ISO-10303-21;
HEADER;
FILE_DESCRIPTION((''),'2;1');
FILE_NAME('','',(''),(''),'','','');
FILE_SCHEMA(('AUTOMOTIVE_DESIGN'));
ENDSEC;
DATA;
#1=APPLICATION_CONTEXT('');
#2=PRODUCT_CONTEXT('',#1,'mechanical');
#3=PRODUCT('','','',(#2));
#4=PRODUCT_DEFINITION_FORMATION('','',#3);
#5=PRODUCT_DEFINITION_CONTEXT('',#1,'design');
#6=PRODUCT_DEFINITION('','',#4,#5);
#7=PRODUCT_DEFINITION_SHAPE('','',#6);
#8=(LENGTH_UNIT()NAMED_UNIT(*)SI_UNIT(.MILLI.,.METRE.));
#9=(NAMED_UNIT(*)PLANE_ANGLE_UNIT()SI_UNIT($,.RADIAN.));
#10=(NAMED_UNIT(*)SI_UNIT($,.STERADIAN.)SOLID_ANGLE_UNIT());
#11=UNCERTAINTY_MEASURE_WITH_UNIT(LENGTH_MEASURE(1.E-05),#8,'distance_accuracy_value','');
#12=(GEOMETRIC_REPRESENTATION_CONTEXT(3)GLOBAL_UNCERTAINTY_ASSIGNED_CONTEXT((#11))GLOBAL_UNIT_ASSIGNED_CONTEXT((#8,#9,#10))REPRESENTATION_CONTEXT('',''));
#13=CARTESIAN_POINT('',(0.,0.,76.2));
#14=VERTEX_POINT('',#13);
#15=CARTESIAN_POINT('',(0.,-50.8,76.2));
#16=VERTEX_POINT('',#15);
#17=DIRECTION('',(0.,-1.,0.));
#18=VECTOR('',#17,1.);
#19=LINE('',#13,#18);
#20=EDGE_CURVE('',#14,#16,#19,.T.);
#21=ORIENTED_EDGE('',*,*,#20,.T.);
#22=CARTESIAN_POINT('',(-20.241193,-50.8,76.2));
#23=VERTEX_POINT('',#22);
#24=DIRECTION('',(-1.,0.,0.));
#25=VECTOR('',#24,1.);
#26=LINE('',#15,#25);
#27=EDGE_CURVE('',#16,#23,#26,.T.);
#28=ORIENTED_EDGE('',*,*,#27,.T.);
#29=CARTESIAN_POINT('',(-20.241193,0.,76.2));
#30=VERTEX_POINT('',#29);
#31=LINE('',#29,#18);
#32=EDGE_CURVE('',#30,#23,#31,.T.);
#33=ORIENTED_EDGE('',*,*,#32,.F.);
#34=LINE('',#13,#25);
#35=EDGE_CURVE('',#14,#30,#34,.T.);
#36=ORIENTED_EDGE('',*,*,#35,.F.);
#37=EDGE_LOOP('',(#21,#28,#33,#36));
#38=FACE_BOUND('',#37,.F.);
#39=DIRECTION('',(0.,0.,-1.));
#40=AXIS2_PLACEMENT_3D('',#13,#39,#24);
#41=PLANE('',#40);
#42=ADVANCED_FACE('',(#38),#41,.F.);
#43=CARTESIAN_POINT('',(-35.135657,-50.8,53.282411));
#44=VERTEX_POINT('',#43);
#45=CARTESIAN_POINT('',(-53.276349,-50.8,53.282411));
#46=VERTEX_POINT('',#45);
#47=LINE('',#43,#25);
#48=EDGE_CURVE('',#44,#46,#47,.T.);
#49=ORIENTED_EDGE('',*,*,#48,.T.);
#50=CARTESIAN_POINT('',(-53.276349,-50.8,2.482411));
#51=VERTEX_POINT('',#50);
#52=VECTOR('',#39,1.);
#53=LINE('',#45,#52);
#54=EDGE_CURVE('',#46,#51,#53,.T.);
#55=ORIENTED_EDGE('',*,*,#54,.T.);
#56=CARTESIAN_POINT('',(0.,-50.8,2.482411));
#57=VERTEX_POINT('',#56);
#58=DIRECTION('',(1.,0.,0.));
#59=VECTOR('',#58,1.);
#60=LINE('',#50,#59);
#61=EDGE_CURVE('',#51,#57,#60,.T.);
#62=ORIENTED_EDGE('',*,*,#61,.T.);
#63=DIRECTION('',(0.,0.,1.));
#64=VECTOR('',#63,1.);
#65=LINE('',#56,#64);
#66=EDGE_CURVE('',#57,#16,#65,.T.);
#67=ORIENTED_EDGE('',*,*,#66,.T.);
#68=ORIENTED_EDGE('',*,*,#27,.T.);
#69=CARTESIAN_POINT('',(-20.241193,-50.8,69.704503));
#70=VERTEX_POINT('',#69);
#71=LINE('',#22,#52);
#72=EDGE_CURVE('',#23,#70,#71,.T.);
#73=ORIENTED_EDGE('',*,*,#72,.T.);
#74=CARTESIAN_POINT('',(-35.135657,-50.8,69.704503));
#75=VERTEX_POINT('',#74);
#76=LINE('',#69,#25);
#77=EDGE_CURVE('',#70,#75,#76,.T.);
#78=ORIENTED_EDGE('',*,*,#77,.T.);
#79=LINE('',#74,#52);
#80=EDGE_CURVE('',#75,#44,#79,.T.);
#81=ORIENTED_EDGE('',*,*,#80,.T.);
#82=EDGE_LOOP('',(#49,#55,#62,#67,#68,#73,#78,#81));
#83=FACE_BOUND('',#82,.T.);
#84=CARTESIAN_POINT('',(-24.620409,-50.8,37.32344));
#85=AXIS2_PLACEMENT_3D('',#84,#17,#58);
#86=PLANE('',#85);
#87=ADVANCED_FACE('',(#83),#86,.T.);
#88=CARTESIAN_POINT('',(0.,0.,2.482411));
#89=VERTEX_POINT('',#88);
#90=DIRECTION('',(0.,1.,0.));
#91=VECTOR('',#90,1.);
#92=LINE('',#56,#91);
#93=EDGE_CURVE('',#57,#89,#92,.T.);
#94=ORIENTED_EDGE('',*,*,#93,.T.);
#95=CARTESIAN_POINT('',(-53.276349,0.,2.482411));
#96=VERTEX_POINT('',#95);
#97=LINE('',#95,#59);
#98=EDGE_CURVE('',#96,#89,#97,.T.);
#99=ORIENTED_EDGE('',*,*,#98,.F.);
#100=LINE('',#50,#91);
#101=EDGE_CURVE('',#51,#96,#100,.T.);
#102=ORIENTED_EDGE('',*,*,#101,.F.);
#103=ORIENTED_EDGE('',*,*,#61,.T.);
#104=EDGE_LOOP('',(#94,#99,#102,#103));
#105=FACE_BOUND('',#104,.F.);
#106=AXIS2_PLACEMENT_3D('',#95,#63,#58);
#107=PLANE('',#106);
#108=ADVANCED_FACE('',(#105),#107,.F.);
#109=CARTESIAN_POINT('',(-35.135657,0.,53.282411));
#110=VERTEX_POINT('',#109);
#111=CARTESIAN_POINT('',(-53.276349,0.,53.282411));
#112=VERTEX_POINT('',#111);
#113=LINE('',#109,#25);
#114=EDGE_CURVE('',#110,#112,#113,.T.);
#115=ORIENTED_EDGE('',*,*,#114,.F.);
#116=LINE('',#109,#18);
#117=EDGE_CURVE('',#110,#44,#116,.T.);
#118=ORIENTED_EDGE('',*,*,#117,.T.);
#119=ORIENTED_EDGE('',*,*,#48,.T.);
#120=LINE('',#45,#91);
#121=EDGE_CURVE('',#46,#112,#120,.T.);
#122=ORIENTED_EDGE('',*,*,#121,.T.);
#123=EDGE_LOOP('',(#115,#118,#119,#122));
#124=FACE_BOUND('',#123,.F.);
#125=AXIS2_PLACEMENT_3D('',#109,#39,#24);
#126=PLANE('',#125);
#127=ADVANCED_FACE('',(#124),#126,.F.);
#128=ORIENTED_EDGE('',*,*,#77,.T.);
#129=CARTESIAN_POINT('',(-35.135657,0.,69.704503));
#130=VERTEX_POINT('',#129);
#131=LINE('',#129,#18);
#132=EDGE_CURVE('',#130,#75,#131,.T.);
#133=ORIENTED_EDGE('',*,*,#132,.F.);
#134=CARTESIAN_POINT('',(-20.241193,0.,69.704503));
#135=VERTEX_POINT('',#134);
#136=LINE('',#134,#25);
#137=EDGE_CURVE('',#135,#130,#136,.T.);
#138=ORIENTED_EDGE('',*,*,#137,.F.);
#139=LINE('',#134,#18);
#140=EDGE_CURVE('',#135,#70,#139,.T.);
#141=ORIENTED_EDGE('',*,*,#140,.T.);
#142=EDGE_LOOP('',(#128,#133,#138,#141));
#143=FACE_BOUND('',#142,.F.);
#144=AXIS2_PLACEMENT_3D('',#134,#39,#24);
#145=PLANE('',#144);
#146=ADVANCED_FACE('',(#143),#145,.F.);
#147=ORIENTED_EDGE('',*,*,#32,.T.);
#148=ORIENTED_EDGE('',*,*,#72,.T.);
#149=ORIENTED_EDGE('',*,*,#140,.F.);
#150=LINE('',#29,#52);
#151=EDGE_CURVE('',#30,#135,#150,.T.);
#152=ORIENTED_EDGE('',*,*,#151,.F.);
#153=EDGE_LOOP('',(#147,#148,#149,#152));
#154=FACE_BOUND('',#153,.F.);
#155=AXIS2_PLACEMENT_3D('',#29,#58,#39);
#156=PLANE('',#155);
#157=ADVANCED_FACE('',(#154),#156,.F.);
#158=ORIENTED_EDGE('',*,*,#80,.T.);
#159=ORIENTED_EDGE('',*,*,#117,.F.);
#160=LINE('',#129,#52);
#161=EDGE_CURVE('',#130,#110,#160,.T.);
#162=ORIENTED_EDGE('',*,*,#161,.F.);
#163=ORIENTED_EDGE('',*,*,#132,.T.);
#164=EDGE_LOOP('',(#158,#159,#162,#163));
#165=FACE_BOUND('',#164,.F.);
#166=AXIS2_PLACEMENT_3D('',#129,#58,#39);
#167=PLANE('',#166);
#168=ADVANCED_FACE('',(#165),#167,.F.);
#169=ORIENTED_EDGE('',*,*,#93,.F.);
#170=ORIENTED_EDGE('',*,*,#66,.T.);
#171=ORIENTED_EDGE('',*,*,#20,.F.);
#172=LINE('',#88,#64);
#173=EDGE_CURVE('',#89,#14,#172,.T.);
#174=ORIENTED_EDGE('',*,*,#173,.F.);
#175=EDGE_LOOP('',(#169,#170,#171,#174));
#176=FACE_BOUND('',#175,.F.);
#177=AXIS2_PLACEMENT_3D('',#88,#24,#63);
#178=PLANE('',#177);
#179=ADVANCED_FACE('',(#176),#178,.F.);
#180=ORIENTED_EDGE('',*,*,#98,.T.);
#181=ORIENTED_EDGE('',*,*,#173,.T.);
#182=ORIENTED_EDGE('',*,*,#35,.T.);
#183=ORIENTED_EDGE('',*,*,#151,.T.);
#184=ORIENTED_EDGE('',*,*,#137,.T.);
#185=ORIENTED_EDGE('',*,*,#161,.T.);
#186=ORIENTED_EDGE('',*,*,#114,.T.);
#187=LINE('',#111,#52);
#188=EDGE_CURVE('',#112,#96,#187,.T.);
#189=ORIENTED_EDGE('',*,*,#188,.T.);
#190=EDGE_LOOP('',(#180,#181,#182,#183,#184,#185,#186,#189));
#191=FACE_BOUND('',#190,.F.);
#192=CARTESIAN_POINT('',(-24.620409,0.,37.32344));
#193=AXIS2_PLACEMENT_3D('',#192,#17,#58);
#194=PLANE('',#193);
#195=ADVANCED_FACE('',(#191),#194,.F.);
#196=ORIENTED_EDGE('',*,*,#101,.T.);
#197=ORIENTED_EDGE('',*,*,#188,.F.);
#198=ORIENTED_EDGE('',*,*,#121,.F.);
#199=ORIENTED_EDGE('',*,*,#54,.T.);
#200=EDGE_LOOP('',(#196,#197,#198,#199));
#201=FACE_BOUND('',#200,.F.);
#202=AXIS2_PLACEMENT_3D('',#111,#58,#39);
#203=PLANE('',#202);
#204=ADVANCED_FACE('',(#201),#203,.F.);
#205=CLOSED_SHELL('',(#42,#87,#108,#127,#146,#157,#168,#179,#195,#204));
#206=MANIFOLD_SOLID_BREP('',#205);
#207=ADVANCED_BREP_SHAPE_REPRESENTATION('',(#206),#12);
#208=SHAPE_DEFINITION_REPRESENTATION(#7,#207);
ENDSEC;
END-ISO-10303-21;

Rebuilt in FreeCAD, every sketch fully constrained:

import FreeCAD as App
import Part
import Sketcher
Q = App.Units.Quantity

doc = App.newDocument("Part")
body = doc.addObject("PartDesign::Body", "Body")

# Sketch on XZ plane
sketch1 = body.newObject("Sketcher::SketchObject", "Sketch")
sketch1.AttachmentSupport = (doc.getObject("XZ_Plane"), [""])
sketch1.MapMode = "FlatFace"
sketch1.addGeometry([
    Part.LineSegment(App.Vector(0, 2, 0), App.Vector(0, 76, 0)),  # 0
    Part.LineSegment(App.Vector(0, 76, 0), App.Vector(-20, 76, 0)),  # 1
    Part.LineSegment(App.Vector(-20, 76, 0), App.Vector(-20, 70, 0)),  # 2
    Part.LineSegment(App.Vector(-20, 70, 0), App.Vector(-35, 70, 0)),  # 3
    Part.LineSegment(App.Vector(-35, 70, 0), App.Vector(-35, 53, 0)),  # 4
    Part.LineSegment(App.Vector(-35, 53, 0), App.Vector(-53, 53, 0)),  # 5
    Part.LineSegment(App.Vector(-53, 53, 0), App.Vector(-53, 2, 0)),  # 6
    Part.LineSegment(App.Vector(-53, 2, 0), App.Vector(0, 2, 0)),  # 7
], False)
sketch1.addConstraint([
    Sketcher.Constraint("Coincident", 0, 2, 1, 1),
    Sketcher.Constraint("Coincident", 1, 2, 2, 1),
    Sketcher.Constraint("Coincident", 2, 2, 3, 1),
    Sketcher.Constraint("Coincident", 3, 2, 4, 1),
    Sketcher.Constraint("Coincident", 4, 2, 5, 1),
    Sketcher.Constraint("Coincident", 5, 2, 6, 1),
    Sketcher.Constraint("Coincident", 6, 2, 7, 1),
    Sketcher.Constraint("Coincident", 7, 2, 0, 1),
    Sketcher.Constraint("Vertical", 0),
    Sketcher.Constraint("Horizontal", 1),
    Sketcher.Constraint("Vertical", 2),
    Sketcher.Constraint("Horizontal", 3),
    Sketcher.Constraint("Vertical", 4),
    Sketcher.Constraint("Horizontal", 5),
    Sketcher.Constraint("Vertical", 6),
    Sketcher.Constraint("Horizontal", 7),
    Sketcher.Constraint("PointOnObject", 0, 2, -2),
    Sketcher.Constraint("DistanceY", 6, 2, 6, 1, Q("2 in")),
    Sketcher.Constraint("DistanceY", -1, 1, 0, 2, Q("3 in")),
    Sketcher.Constraint("DistanceX", 7, 1, 7, 2, Q("53.276349 mm")),
    Sketcher.Constraint("DistanceY", 0, 1, 0, 2, Q("73.717589 mm")),
    Sketcher.Constraint("DistanceY", 4, 2, 4, 1, Q("16.422092 mm")),
    Sketcher.Constraint("DistanceX", 1, 2, 1, 1, Q("20.241193 mm")),
    Sketcher.Constraint("DistanceX", 3, 2, 3, 1, Q("14.894464 mm")),
])
pad1 = body.newObject("PartDesign::Pad", "Pad")
pad1.Profile = sketch1
pad1.Length = Q("1 in")

# Sketch on XZ plane
sketch2 = body.newObject("Sketcher::SketchObject", "Sketch001")
sketch2.AttachmentSupport = (doc.getObject("XZ_Plane"), [""])
sketch2.MapMode = "FlatFace"
sketch2.addGeometry([
    Part.LineSegment(App.Vector(0, 2, 0), App.Vector(0, 76, 0)),  # 0
    Part.LineSegment(App.Vector(0, 76, 0), App.Vector(-20, 76, 0)),  # 1
    Part.LineSegment(App.Vector(-20, 76, 0), App.Vector(-20, 70, 0)),  # 2
    Part.LineSegment(App.Vector(-20, 70, 0), App.Vector(-35, 70, 0)),  # 3
    Part.LineSegment(App.Vector(-35, 70, 0), App.Vector(-35, 53, 0)),  # 4
    Part.LineSegment(App.Vector(-35, 53, 0), App.Vector(-53, 53, 0)),  # 5
    Part.LineSegment(App.Vector(-53, 53, 0), App.Vector(-53, 2, 0)),  # 6
    Part.LineSegment(App.Vector(-53, 2, 0), App.Vector(0, 2, 0)),  # 7
], False)
sketch2.addConstraint([
    Sketcher.Constraint("Coincident", 0, 2, 1, 1),
    Sketcher.Constraint("Coincident", 1, 2, 2, 1),
    Sketcher.Constraint("Coincident", 2, 2, 3, 1),
    Sketcher.Constraint("Coincident", 3, 2, 4, 1),
    Sketcher.Constraint("Coincident", 4, 2, 5, 1),
    Sketcher.Constraint("Coincident", 5, 2, 6, 1),
    Sketcher.Constraint("Coincident", 6, 2, 7, 1),
    Sketcher.Constraint("Coincident", 7, 2, 0, 1),
    Sketcher.Constraint("Vertical", 0),
    Sketcher.Constraint("Horizontal", 1),
    Sketcher.Constraint("Vertical", 2),
    Sketcher.Constraint("Horizontal", 3),
    Sketcher.Constraint("Vertical", 4),
    Sketcher.Constraint("Horizontal", 5),
    Sketcher.Constraint("Vertical", 6),
    Sketcher.Constraint("Horizontal", 7),
    Sketcher.Constraint("PointOnObject", 0, 2, -2),
    Sketcher.Constraint("DistanceY", 6, 2, 6, 1, Q("2 in")),
    Sketcher.Constraint("DistanceY", -1, 1, 0, 2, Q("3 in")),
    Sketcher.Constraint("DistanceX", 7, 1, 7, 2, Q("53.276349 mm")),
    Sketcher.Constraint("DistanceY", 0, 1, 0, 2, Q("73.717589 mm")),
    Sketcher.Constraint("DistanceY", 4, 2, 4, 1, Q("16.422092 mm")),
    Sketcher.Constraint("DistanceX", 1, 2, 1, 1, Q("20.241193 mm")),
    Sketcher.Constraint("DistanceX", 3, 2, 3, 1, Q("14.894464 mm")),
])
pad2 = body.newObject("PartDesign::Pad", "Pad001")
pad2.Profile = sketch2
pad2.Length = Q("2 in")

doc.recompute()
